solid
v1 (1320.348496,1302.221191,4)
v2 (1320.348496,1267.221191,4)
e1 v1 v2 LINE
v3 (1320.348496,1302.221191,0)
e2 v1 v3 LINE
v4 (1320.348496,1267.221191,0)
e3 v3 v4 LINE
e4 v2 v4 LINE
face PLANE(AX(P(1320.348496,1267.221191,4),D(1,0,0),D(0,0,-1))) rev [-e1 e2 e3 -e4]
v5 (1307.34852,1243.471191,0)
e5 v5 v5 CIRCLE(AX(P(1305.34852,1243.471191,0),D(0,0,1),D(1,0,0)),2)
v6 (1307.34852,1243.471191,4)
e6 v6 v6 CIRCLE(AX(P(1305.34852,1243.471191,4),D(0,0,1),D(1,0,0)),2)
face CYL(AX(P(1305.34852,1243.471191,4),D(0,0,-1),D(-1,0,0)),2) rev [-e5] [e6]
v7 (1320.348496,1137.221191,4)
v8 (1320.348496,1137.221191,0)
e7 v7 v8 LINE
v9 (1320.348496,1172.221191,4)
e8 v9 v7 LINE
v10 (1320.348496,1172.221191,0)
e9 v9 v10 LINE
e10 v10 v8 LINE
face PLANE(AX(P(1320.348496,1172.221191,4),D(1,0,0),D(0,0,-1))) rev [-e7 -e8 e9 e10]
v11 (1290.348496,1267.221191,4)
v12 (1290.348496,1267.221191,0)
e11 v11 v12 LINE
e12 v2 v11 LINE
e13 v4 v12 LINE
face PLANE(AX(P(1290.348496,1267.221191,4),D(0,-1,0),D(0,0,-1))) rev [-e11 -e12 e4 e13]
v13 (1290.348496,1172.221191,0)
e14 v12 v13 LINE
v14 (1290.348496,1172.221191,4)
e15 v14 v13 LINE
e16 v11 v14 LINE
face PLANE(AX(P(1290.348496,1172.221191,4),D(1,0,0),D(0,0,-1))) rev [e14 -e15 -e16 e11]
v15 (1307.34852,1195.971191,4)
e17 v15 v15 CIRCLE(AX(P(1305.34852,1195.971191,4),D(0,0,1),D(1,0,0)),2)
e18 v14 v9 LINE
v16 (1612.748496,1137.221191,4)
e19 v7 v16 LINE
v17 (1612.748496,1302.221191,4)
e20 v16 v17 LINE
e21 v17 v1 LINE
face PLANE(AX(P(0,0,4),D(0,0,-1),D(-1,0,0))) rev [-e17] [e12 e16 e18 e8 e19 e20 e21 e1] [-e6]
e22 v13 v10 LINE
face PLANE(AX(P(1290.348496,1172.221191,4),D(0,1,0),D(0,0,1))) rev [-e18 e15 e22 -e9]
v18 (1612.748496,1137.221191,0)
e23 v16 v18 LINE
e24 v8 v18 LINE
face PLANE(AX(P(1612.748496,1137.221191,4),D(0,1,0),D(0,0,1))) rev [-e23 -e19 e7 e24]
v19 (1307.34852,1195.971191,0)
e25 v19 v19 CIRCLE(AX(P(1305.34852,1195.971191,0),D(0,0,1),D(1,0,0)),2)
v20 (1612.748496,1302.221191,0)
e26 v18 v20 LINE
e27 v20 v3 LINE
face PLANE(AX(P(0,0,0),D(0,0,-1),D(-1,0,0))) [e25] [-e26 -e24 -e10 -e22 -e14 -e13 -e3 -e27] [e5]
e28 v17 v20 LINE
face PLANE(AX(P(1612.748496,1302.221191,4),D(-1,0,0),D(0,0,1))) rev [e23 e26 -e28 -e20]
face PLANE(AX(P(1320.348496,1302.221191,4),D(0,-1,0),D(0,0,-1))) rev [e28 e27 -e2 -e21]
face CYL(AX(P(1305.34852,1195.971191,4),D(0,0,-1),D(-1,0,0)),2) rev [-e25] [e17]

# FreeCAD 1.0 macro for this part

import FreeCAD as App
import Part
import Sketcher

V = App.Vector
Q = App.Units.Quantity


def add_polygon(sketch, points):
    """Adds a closed chain of lines whose ends are joined by coincident constraints."""
    first, n = sketch.GeometryCount, len(points)
    for a, b in zip(points, points[1:] + points[:1]):
        sketch.addGeometry(Part.LineSegment(App.Vector(*a, 0), App.Vector(*b, 0)), False)
    for i in range(n):
        sketch.addConstraint(Sketcher.Constraint("Coincident", first + i, 2, first + (i + 1) % n, 1))

doc = App.newDocument("Part")
params = doc.addObject("Spreadsheet::Sheet", "Params")
for row, (alias, value) in enumerate([
    ("sketch1_diameter", "4 mm"),
    ("sketch1_width", "30 mm"),
    ("sketch1_height", "95 mm"),
    ("sketch1_height2", "35 mm"),
    ("sketch1_width2", "292.4 mm"),
    ("pad1_length", "4 mm"),
], start=1):
    params.set(f"A{row}", alias)
    params.set(f"B{row}", "=" + value)
    params.setAlias(f"B{row}", alias)

body = doc.addObject("PartDesign::Body", "Body")

sketch1 = body.newObject("Sketcher::SketchObject", "Sketch")
sketch1.AttachmentSupport = (doc.getObject("XY_Plane"), [""])
sketch1.MapMode = "FlatFace"
add_polygon(sketch1, [(1320.3, 1267.2), (1290.3, 1267.2), (1290.3, 1172.2), (1320.3, 1172.2), (1320.3, 1137.2), (1612.7, 1137.2), (1612.7, 1302.2), (1320.3, 1302.2)])
sketch1.addGeometry(Part.Circle(V(1305.3, 1196, 0), V(0, 0, 1), 2), False)
sketch1.addGeometry(Part.Circle(V(1305.3, 1243.5, 0), V(0, 0, 1), 2), False)
sketch1.addConstraint([
    Sketcher.Constraint("Horizontal", 0),
    Sketcher.Constraint("Vertical", 1),
    Sketcher.Constraint("Horizontal", 2),
    Sketcher.Constraint("Vertical", 3),
    Sketcher.Constraint("Horizontal", 4),
    Sketcher.Constraint("Vertical", 5),
    Sketcher.Constraint("Horizontal", 6),
    Sketcher.Constraint("Vertical", 7),
    Sketcher.Constraint("Equal", 8, 9),
    Sketcher.Constraint("Vertical", 8, 3, 9, 3),
    Sketcher.Constraint("Vertical", 3, 2, 6, 2),
    Sketcher.Constraint("Equal", 3, 7),
    Sketcher.Constraint("Diameter", 8, Q("4 mm")),
    Sketcher.Constraint("DistanceX", 0, 2, 0, 1, Q("30 mm")),
    Sketcher.Constraint("DistanceY", 1, 2, 1, 1, Q("95 mm")),
    Sketcher.Constraint("DistanceY", 3, 2, 3, 1, Q("35 mm")),
    Sketcher.Constraint("DistanceX", 4, 1, 4, 2, Q("292.4 mm")),
    Sketcher.Constraint("DistanceY", 8, 3, 9, 3, Q("47.5 mm")),
    Sketcher.Constraint("DistanceY", 9, 3, 0, 2, Q("23.75 mm")),
    Sketcher.Constraint("DistanceX", -1, 1, 8, 3, Q("1305.34852 mm")),
    Sketcher.Constraint("DistanceY", -1, 1, 8, 3, Q("1195.971191 mm")),
    Sketcher.Constraint("DistanceX", -1, 1, 0, 2, Q("1290.348496 mm")),
])
sketch1.setExpression("Constraints[20]", "Params.sketch1_diameter")
sketch1.setExpression("Constraints[21]", "Params.sketch1_width")
sketch1.setExpression("Constraints[22]", "Params.sketch1_height")
sketch1.setExpression("Constraints[23]", "Params.sketch1_height2")
sketch1.setExpression("Constraints[24]", "Params.sketch1_width2")
pad1 = body.newObject("PartDesign::Pad", "Pad")
pad1.Profile = sketch1
pad1.setExpression("Length", "Params.pad1_length")

doc.recompute()
